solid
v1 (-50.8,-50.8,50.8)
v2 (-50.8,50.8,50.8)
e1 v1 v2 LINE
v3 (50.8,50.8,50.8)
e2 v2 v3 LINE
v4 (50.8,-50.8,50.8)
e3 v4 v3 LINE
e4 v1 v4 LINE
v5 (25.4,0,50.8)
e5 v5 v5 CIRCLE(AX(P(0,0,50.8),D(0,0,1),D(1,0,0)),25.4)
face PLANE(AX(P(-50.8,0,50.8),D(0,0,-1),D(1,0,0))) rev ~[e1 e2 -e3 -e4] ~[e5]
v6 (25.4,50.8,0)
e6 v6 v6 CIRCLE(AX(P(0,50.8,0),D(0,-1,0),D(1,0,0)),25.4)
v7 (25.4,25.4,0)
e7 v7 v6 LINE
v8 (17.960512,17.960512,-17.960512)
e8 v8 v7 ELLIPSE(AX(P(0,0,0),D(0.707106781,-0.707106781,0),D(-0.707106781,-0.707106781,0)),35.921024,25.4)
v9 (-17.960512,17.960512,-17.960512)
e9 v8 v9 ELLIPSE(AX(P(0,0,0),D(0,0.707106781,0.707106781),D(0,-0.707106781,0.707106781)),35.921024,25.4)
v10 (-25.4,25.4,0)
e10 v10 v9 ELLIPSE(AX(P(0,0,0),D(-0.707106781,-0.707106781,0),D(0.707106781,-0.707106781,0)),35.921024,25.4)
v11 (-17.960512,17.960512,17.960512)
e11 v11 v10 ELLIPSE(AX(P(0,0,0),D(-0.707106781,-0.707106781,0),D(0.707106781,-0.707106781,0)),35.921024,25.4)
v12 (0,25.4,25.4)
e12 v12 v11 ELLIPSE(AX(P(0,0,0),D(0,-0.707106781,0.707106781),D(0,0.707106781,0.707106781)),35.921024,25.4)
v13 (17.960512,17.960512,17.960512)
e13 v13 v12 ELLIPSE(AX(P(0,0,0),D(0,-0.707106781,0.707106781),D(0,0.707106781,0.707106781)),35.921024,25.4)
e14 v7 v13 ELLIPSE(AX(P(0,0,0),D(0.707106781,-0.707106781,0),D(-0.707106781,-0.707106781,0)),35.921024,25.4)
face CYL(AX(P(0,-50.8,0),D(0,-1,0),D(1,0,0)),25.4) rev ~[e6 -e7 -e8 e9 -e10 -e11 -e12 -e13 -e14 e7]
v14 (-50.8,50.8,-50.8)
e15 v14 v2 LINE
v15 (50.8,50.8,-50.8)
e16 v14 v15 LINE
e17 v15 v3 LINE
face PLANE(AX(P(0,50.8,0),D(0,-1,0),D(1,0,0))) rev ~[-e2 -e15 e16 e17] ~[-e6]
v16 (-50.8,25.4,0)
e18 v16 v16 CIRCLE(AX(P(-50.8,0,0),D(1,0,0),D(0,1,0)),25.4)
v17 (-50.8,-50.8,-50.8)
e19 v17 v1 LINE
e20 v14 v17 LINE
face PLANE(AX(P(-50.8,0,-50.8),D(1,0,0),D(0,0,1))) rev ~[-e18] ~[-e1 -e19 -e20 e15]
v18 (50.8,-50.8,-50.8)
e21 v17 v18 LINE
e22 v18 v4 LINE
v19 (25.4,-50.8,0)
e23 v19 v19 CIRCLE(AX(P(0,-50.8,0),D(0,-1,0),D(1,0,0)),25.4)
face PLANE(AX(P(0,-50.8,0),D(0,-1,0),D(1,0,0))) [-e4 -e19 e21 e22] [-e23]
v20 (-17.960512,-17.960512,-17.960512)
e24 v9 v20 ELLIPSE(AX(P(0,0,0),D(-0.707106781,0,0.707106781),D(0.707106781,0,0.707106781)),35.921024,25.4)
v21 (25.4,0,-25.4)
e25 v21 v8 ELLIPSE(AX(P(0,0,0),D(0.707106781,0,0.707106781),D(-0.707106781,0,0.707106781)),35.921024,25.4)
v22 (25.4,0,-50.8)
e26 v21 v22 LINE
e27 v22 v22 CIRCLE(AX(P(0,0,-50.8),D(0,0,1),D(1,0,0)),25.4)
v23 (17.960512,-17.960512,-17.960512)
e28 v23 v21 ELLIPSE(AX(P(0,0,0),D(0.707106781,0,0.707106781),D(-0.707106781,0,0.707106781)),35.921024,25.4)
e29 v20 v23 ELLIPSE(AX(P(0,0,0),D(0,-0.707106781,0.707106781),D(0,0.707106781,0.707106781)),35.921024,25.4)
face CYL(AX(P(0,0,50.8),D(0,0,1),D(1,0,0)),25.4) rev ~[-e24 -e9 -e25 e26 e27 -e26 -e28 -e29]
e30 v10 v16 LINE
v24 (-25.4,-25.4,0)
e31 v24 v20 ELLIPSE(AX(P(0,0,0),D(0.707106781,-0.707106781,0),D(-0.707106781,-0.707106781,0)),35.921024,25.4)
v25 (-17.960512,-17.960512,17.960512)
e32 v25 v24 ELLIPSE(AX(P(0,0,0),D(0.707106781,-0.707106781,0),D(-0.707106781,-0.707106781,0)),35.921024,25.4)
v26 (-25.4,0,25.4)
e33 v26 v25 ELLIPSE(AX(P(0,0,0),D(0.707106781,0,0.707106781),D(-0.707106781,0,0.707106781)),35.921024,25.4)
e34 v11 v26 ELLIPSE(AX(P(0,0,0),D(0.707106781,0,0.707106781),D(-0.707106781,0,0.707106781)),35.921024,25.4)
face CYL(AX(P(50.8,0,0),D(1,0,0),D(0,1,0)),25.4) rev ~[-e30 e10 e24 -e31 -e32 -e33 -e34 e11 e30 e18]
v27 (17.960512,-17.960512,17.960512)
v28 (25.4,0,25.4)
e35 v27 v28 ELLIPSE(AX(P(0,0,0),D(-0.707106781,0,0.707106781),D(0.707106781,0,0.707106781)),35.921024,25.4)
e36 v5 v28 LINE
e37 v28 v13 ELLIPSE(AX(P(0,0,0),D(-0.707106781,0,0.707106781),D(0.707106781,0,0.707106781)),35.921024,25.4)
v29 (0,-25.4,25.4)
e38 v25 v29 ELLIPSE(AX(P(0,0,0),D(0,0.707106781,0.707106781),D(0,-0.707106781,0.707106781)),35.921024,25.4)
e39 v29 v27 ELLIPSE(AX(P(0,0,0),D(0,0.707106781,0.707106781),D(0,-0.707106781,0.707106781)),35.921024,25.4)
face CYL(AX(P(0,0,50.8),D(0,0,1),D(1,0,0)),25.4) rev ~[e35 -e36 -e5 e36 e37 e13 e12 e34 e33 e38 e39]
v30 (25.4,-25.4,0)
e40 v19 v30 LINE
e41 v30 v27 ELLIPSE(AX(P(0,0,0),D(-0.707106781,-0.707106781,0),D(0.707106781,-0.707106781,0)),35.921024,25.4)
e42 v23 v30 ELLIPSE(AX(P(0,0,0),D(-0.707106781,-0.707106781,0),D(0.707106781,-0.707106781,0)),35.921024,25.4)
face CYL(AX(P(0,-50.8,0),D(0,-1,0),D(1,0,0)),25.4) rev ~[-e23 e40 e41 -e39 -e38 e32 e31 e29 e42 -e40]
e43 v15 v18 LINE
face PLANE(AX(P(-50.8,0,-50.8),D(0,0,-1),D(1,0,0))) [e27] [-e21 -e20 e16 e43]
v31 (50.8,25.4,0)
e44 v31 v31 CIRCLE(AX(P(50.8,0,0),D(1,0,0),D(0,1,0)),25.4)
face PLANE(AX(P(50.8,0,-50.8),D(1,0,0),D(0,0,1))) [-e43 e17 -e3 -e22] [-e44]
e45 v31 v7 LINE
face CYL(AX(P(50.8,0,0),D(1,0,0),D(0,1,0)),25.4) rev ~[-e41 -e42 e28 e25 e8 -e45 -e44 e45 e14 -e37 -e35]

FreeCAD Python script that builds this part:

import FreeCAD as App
import Part
import Sketcher

V = App.Vector
Q = App.Units.Quantity


def add_polygon(sketch, points):
    """Adds a closed chain of lines whose ends are joined by coincident constraints."""
    first, n = sketch.GeometryCount, len(points)
    for a, b in zip(points, points[1:] + points[:1]):
        sketch.addGeometry(Part.LineSegment(App.Vector(*a, 0), App.Vector(*b, 0)), False)
    for i in range(n):
        sketch.addConstraint(Sketcher.Constraint("Coincident", first + i, 2, first + (i + 1) % n, 1))

doc = App.newDocument("Part")
body = doc.addObject("PartDesign::Body", "Body")

sketch1 = doc.addObject("Sketcher::SketchObject", "Sketch")
body.addObject(sketch1)
sketch1.AttachmentSupport = (doc.XZ_Plane, [""])
sketch1.MapMode = "FlatFace"
add_polygon(sketch1, [(-50.8, 50.8), (-50.8, -50.8), (50.8, -50.8), (50.8, 50.8)])
sketch1.addConstraint(Sketcher.Constraint("Vertical", 0))
sketch1.addConstraint(Sketcher.Constraint("Horizontal", 1))
sketch1.addConstraint(Sketcher.Constraint("Vertical", 2))
sketch1.addConstraint(Sketcher.Constraint("Horizontal", 3))
sketch1.addConstraint(Sketcher.Constraint("Symmetric", 0, 2, 2, 2, -1, 1))
sketch1.addConstraint(Sketcher.Constraint("Equal", 3, 0))
sketch1.addConstraint(Sketcher.Constraint("DistanceX", 1, 1, 1, 2, Q("4 in")))
pad1 = doc.addObject("PartDesign::Pad", "Pad")
body.addObject(pad1)
pad1.Profile = sketch1
pad1.Length = Q("4 in")
pad1.Midplane = True

sketch2 = doc.addObject("Sketcher::SketchObject", "Sketch001")
body.addObject(sketch2)
sketch2.AttachmentSupport = (doc.XY_Plane, [""])
sketch2.MapMode = "FlatFace"
sketch2.AttachmentOffset = App.Placement(V(0, 0, 2 * 25.4), App.Rotation())
sketch2.addGeometry(Part.Circle(V(0, 0, 0), V(0, 0, 1), 25.4), False)
sketch2.addConstraint(Sketcher.Constraint("Coincident", 0, 3, -1, 1))
sketch2.addConstraint(Sketcher.Constraint("Diameter", 0, Q("2 in")))
pocket1 = doc.addObject("PartDesign::Pocket", "Pocket")
body.addObject(pocket1)
pocket1.Profile = sketch2
pocket1.Type = "ThroughAll"

sketch3 = doc.addObject("Sketcher::SketchObject", "Sketch002")
body.addObject(sketch3)
sketch3.AttachmentSupport = (doc.XZ_Plane, [""])
sketch3.MapMode = "FlatFace"
sketch3.AttachmentOffset = App.Placement(V(0, 0, 2 * 25.4), App.Rotation())
sketch3.addGeometry(Part.Circle(V(0, 0, 0), V(0, 0, 1), 25.4), False)
sketch3.addConstraint(Sketcher.Constraint("Coincident", 0, 3, -1, 1))
sketch3.addConstraint(Sketcher.Constraint("Diameter", 0, Q("2 in")))
pocket2 = doc.addObject("PartDesign::Pocket", "Pocket001")
body.addObject(pocket2)
pocket2.Profile = sketch3
pocket2.Type = "ThroughAll"

sketch4 = doc.addObject("Sketcher::SketchObject", "Sketch003")
body.addObject(sketch4)
sketch4.AttachmentSupport = (doc.YZ_Plane, [""])
sketch4.MapMode = "FlatFace"
sketch4.AttachmentOffset = App.Placement(V(0, 0, 2 * 25.4), App.Rotation())
sketch4.addGeometry(Part.Circle(V(0, 0, 0), V(0, 0, 1), 25.4), False)
sketch4.addConstraint(Sketcher.Constraint("Coincident", 0, 3, -1, 1))
sketch4.addConstraint(Sketcher.Constraint("Diameter", 0, Q("2 in")))
pocket3 = doc.addObject("PartDesign::Pocket", "Pocket002")
body.addObject(pocket3)
pocket3.Profile = sketch4
pocket3.Type = "ThroughAll"

doc.recompute()
